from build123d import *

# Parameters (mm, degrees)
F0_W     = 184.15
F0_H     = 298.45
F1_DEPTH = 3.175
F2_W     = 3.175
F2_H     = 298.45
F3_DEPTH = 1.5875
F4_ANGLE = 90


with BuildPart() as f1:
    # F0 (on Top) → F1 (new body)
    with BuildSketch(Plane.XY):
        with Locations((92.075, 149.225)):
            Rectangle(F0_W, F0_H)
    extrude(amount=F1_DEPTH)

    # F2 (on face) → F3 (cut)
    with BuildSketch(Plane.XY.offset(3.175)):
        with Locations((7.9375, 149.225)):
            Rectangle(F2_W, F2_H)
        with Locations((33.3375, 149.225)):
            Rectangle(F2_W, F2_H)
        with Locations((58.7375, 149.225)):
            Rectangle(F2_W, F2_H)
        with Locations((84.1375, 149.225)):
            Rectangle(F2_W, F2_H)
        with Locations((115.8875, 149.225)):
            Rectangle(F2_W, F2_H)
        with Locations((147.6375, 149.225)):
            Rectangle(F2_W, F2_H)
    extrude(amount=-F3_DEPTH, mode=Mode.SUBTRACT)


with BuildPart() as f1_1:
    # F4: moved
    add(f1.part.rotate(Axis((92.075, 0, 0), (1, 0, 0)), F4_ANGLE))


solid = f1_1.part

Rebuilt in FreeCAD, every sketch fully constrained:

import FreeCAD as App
import Part
import Sketcher
from FreeCAD import Vector
Q = App.Units.Quantity

doc = App.newDocument("Part")
body = doc.addObject("PartDesign::Body", "Body")

# Sketch on XY plane
sketch1 = body.newObject("Sketcher::SketchObject", "Sketch")
sketch1.AttachmentSupport = (doc.getObject("XY_Plane"), [""])
sketch1.MapMode = "FlatFace"
sketch1.addGeometry([
    Part.LineSegment(Vector(0, 298, 0), Vector(0, 0, 0)),
    Part.LineSegment(Vector(0, 0, 0), Vector(184, 0, 0)),
    Part.LineSegment(Vector(184, 0, 0), Vector(184, 298, 0)),
    Part.LineSegment(Vector(184, 298, 0), Vector(0, 298, 0)),
], False)
sketch1.addConstraint([
    Sketcher.Constraint("Coincident", 0, 2, 1, 1),
    Sketcher.Constraint("Coincident", 1, 2, 2, 1),
    Sketcher.Constraint("Coincident", 2, 2, 3, 1),
    Sketcher.Constraint("Coincident", 3, 2, 0, 1),
    Sketcher.Constraint("Vertical", 0),
    Sketcher.Constraint("Horizontal", 1),
    Sketcher.Constraint("Vertical", 2),
    Sketcher.Constraint("Horizontal", 3),
    Sketcher.Constraint("Coincident", 0, 2, -1, 1),
    Sketcher.Constraint("DistanceX", 1, 1, 1, 2, Q("7.25 in")),
    Sketcher.Constraint("DistanceY", 0, 2, 0, 1, Q("11.75 in")),
])
pad1 = body.newObject("PartDesign::Pad", "Pad")
pad1.Profile = sketch1
pad1.Length = Q("0.125 in")

# Sketch on XY plane
sketch2 = body.newObject("Sketcher::SketchObject", "Sketch001")
sketch2.AttachmentSupport = (doc.getObject("XY_Plane"), [""])
sketch2.MapMode = "FlatFace"
sketch2.AttachmentOffset = App.Placement(Vector(0, 0, 0.125 * 25.4), App.Rotation())
sketch2.addGeometry([
    Part.LineSegment(Vector(6.3, 298.4, 0), Vector(6.3, 0, 0)),  # 0
    Part.LineSegment(Vector(6.3, 0, 0), Vector(9.5, 0, 0)),  # 1
    Part.LineSegment(Vector(9.5, 0, 0), Vector(9.5, 298.4, 0)),  # 2
    Part.LineSegment(Vector(9.5, 298.4, 0), Vector(6.3, 298.4, 0)),  # 3
    Part.LineSegment(Vector(31.8, 298.4, 0), Vector(31.8, 0, 0)),  # 4
    Part.LineSegment(Vector(31.8, 0, 0), Vector(34.9, 0, 0)),  # 5
    Part.LineSegment(Vector(34.9, 0, 0), Vector(34.9, 298.4, 0)),  # 6
    Part.LineSegment(Vector(34.9, 298.4, 0), Vector(31.8, 298.4, 0)),  # 7
    Part.LineSegment(Vector(57.1, 298.4, 0), Vector(57.1, 0, 0)),  # 8
    Part.LineSegment(Vector(57.1, 0, 0), Vector(60.3, 0, 0)),  # 9
    Part.LineSegment(Vector(60.3, 0, 0), Vector(60.3, 298.4, 0)),  # 10
    Part.LineSegment(Vector(60.3, 298.4, 0), Vector(57.1, 298.4, 0)),  # 11
    Part.LineSegment(Vector(82.5, 298.4, 0), Vector(82.5, 0, 0)),  # 12
    Part.LineSegment(Vector(82.5, 0, 0), Vector(85.7, 0, 0)),  # 13
    Part.LineSegment(Vector(85.7, 0, 0), Vector(85.7, 298.4, 0)),  # 14
    Part.LineSegment(Vector(85.7, 298.4, 0), Vector(82.5, 298.4, 0)),  # 15
    Part.LineSegment(Vector(114.3, 298.4, 0), Vector(114.3, 0, 0)),  # 16
    Part.LineSegment(Vector(114.3, 0, 0), Vector(117.5, 0, 0)),  # 17
    Part.LineSegment(Vector(117.5, 0, 0), Vector(117.5, 298.4, 0)),  # 18
    Part.LineSegment(Vector(117.5, 298.4, 0), Vector(114.3, 298.4, 0)),  # 19
    Part.LineSegment(Vector(146.1, 298.4, 0), Vector(146.1, 0, 0)),  # 20
    Part.LineSegment(Vector(146.1, 0, 0), Vector(149.2, 0, 0)),  # 21
    Part.LineSegment(Vector(149.2, 0, 0), Vector(149.2, 298.4, 0)),  # 22
    Part.LineSegment(Vector(149.2, 298.4, 0), Vector(146.1, 298.4, 0)),  # 23
], False)
sketch2.addConstraint([
    Sketcher.Constraint("Coincident", 0, 2, 1, 1),
    Sketcher.Constraint("Coincident", 1, 2, 2, 1),
    Sketcher.Constraint("Coincident", 2, 2, 3, 1),
    Sketcher.Constraint("Coincident", 3, 2, 0, 1),
    Sketcher.Constraint("Coincident", 4, 2, 5, 1),
    Sketcher.Constraint("Coincident", 5, 2, 6, 1),
    Sketcher.Constraint("Coincident", 6, 2, 7, 1),
    Sketcher.Constraint("Coincident", 7, 2, 4, 1),
    Sketcher.Constraint("Coincident", 8, 2, 9, 1),
    Sketcher.Constraint("Coincident", 9, 2, 10, 1),
    Sketcher.Constraint("Coincident", 10, 2, 11, 1),
    Sketcher.Constraint("Coincident", 11, 2, 8, 1),
    Sketcher.Constraint("Coincident", 12, 2, 13, 1),
    Sketcher.Constraint("Coincident", 13, 2, 14, 1),
    Sketcher.Constraint("Coincident", 14, 2, 15, 1),
    Sketcher.Constraint("Coincident", 15, 2, 12, 1),
    Sketcher.Constraint("Coincident", 16, 2, 17, 1),
    Sketcher.Constraint("Coincident", 17, 2, 18, 1),
    Sketcher.Constraint("Coincident", 18, 2, 19, 1),
    Sketcher.Constraint("Coincident", 19, 2, 16, 1),
    Sketcher.Constraint("Coincident", 20, 2, 21, 1),
    Sketcher.Constraint("Coincident", 21, 2, 22, 1),
    Sketcher.Constraint("Coincident", 22, 2, 23, 1),
    Sketcher.Constraint("Coincident", 23, 2, 20, 1),
    Sketcher.Constraint("Vertical", 0),
    Sketcher.Constraint("Horizontal", 1),
    Sketcher.Constraint("Vertical", 2),
    Sketcher.Constraint("Horizontal", 3),
    Sketcher.Constraint("Vertical", 4),
    Sketcher.Constraint("Horizontal", 5),
    Sketcher.Constraint("Vertical", 6),
    Sketcher.Constraint("Horizontal", 7),
    Sketcher.Constraint("Vertical", 8),
    Sketcher.Constraint("Horizontal", 9),
    Sketcher.Constraint("Vertical", 10),
    Sketcher.Constraint("Horizontal", 11),
    Sketcher.Constraint("Vertical", 12),
    Sketcher.Constraint("Horizontal", 13),
    Sketcher.Constraint("Vertical", 14),
    Sketcher.Constraint("Horizontal", 15),
    Sketcher.Constraint("Vertical", 16),
    Sketcher.Constraint("Horizontal", 17),
    Sketcher.Constraint("Vertical", 18),
    Sketcher.Constraint("Horizontal", 19),
    Sketcher.Constraint("Vertical", 20),
    Sketcher.Constraint("Horizontal", 21),
    Sketcher.Constraint("Vertical", 22),
    Sketcher.Constraint("Horizontal", 23),
    Sketcher.Constraint("PointOnObject", 0, 2, -1),
    Sketcher.Constraint("PointOnObject", 4, 2, -1),
    Sketcher.Constraint("PointOnObject", 8, 2, -1),
    Sketcher.Constraint("PointOnObject", 12, 2, -1),
    Sketcher.Constraint("PointOnObject", 16, 2, -1),
    Sketcher.Constraint("PointOnObject", 20, 2, -1),
    Sketcher.Constraint("Horizontal", 3, 2, 6, 2),
    Sketcher.Constraint("Horizontal", 7, 2, 10, 2),
    Sketcher.Constraint("Horizontal", 11, 2, 14, 2),
    Sketcher.Constraint("Horizontal", 15, 2, 18, 2),
    Sketcher.Constraint("Horizontal", 19, 2, 22, 2),
    Sketcher.Constraint("Equal", 3, 5),
    Sketcher.Constraint("Equal", 7, 9),
    Sketcher.Constraint("Equal", 11, 13),
    Sketcher.Constraint("Equal", 15, 17),
    Sketcher.Constraint("Equal", 19, 21),
    Sketcher.Constraint("DistanceX", 0, 2, 4, 2, Q("1 in")),
    Sketcher.Constraint("DistanceX", 4, 2, 8, 2, Q("1 in")),
    Sketcher.Constraint("DistanceX", 8, 2, 12, 2, Q("1 in")),
    Sketcher.Constraint("DistanceY", 0, 2, 0, 1, Q("11.75 in")),
    Sketcher.Constraint("DistanceX", -1, 1, 16, 2, Q("4.5 in")),
    Sketcher.Constraint("DistanceX", 12, 2, 20, 2, Q("2.5 in")),
    Sketcher.Constraint("DistanceX", 1, 1, 1, 2, Q("0.125 in")),
    Sketcher.Constraint("DistanceX", -1, 1, 0, 2, Q("0.25 in")),
])
pocket1 = body.newObject("PartDesign::Pocket", "Pocket")
pocket1.Profile = sketch2
pocket1.Length = Q("0.0625 in")
body2 = doc.addObject("PartDesign::Body", "Body001")
doc.recompute()

body.Placement = App.Placement(Vector(0, 0, 0), App.Rotation(Vector(1, 0, 0), 90))
boolean = body2.newObject("PartDesign::Boolean", "Boolean")
boolean.Type = "Fuse"
boolean.addObjects([body])

doc.recompute()
